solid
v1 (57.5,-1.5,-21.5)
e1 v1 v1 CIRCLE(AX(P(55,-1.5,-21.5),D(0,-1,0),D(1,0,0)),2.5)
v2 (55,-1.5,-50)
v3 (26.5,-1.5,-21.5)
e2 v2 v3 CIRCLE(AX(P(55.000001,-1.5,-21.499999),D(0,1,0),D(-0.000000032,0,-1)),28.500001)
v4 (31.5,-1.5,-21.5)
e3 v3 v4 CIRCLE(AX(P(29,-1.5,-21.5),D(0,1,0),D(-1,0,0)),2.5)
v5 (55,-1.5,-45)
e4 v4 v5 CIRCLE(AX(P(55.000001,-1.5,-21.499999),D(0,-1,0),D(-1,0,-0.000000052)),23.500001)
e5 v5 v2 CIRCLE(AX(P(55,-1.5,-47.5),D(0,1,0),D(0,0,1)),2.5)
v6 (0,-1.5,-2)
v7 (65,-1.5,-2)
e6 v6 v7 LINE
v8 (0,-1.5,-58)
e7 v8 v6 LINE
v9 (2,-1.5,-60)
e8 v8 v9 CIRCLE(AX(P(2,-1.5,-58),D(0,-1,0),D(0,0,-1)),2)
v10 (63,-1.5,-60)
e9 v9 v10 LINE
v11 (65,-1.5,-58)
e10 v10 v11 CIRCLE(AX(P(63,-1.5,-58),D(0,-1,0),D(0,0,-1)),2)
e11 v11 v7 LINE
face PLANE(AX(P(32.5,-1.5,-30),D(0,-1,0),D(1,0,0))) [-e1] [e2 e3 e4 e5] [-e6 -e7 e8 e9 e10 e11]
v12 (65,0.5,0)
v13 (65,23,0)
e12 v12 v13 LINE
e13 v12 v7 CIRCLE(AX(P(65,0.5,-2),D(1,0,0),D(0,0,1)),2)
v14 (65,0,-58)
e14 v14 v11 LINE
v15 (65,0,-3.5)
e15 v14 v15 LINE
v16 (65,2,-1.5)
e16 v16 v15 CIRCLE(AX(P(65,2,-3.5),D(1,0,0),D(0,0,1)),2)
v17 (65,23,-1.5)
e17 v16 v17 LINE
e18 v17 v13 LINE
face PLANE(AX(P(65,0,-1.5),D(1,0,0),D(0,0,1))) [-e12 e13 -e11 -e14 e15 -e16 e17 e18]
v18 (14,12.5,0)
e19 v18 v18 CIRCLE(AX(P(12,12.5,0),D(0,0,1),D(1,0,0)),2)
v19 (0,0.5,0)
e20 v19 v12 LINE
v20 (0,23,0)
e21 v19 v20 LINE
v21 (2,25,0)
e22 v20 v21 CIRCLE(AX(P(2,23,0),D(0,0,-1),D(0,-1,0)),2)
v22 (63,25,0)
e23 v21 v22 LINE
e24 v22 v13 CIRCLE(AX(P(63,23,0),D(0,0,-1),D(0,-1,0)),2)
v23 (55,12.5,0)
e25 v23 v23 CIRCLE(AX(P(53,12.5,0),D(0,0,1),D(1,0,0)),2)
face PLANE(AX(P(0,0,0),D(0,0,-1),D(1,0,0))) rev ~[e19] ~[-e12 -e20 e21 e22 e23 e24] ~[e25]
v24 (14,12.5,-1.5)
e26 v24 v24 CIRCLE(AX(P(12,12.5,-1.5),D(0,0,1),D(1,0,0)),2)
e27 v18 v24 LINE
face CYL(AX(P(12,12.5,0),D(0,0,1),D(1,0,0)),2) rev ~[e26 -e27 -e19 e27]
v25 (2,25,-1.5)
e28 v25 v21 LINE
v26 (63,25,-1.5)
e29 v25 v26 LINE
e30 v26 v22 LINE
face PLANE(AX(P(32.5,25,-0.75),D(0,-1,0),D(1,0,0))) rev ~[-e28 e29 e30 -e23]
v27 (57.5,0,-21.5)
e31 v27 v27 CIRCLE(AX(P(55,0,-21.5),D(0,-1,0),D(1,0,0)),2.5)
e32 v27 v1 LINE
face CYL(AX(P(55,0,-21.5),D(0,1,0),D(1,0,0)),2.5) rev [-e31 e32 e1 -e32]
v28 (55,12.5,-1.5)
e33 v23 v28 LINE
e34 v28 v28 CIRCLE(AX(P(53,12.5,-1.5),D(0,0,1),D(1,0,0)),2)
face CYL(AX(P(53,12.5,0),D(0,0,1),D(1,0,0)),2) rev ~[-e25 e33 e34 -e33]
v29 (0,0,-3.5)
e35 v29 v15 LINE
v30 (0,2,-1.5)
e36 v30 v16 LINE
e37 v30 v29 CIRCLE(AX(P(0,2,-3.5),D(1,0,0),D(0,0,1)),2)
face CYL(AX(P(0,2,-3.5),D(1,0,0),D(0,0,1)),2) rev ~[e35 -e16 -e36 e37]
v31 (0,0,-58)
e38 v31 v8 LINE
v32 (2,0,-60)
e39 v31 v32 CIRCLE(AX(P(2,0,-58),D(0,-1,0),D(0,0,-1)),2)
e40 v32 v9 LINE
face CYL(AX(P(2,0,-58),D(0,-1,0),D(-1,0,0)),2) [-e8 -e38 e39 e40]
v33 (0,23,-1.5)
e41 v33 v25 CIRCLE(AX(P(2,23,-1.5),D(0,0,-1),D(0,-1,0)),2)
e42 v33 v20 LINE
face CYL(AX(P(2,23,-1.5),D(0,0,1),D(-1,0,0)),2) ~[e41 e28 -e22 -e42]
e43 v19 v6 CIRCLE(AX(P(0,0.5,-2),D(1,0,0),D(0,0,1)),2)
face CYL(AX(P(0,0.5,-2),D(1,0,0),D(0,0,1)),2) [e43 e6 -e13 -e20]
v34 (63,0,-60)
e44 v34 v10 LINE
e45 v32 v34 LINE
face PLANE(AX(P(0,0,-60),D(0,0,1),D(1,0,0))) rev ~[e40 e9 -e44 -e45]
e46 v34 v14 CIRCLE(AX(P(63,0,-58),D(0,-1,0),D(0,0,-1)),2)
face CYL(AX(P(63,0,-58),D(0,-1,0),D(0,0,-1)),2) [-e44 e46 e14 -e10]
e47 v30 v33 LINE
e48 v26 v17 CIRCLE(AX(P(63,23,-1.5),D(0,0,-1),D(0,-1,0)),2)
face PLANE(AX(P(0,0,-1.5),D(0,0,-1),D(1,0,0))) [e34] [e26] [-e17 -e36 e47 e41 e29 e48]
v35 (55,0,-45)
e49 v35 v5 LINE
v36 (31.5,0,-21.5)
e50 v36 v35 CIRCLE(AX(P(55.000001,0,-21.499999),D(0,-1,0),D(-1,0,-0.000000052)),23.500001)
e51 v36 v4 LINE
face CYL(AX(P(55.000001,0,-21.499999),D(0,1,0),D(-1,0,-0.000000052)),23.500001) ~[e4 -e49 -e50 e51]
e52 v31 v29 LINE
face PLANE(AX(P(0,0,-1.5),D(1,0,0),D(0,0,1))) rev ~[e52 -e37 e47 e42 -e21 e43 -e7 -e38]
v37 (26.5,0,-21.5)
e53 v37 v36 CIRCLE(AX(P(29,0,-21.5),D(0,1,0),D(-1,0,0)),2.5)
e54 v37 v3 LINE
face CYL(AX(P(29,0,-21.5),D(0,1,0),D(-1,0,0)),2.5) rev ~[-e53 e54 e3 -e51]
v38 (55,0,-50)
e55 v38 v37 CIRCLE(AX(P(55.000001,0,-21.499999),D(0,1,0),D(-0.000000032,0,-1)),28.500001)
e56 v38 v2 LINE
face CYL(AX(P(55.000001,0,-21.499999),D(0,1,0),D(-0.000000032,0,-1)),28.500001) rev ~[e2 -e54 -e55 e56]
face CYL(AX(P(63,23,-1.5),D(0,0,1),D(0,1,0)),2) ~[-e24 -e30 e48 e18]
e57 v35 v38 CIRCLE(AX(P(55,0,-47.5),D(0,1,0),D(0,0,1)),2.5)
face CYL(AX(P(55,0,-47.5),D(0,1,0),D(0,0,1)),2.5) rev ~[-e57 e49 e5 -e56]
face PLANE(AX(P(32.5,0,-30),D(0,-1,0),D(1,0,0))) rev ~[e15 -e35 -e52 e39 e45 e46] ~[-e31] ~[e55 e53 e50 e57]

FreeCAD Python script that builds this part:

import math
import FreeCAD as App
import Part
import Sketcher
Q = App.Units.Quantity


def edges_at(feature, points):
    """Names of the edges that pass closest to the given points."""
    edges = feature.Shape.Edges
    near = lambda p: min(range(len(edges)), key=lambda i: edges[i].distToShape(Part.Vertex(*p))[0])
    return sorted({f"Edge{near(p) + 1}" for p in points})

doc = App.newDocument("Part")
body = doc.addObject("PartDesign::Body", "Body")

sketch1 = body.newObject("Sketcher::SketchObject", "Sketch")
sketch1.AttachmentSupport = (doc.getObject("XZ_Plane"), [""])
sketch1.MapMode = "FlatFace"
sketch1.addGeometry(Part.LineSegment(App.Vector(0, 0, 0), App.Vector(0, -60, 0)), False)
sketch1.addGeometry(Part.LineSegment(App.Vector(0, -60, 0), App.Vector(65, -60, 0)), False)
sketch1.addGeometry(Part.LineSegment(App.Vector(65, -60, 0), App.Vector(65, 0, 0)), False)
sketch1.addGeometry(Part.LineSegment(App.Vector(65, 0, 0), App.Vector(0, 0, 0)), False)
sketch1.addGeometry(Part.ArcOfCircle(Part.Circle(App.Vector(55, -21.5, 0), App.Vector(0, 0, 1), 23.5), math.radians(-180), math.radians(-90)), False)
sketch1.addGeometry(Part.ArcOfCircle(Part.Circle(App.Vector(55, -47.5, 0), App.Vector(0, 0, 1), 2.5), math.radians(-90), math.radians(90)), False)
sketch1.addGeometry(Part.ArcOfCircle(Part.Circle(App.Vector(55, -21.5, 0), App.Vector(0, 0, 1), 28.5), math.radians(-180), math.radians(-90)), False)
sketch1.addGeometry(Part.ArcOfCircle(Part.Circle(App.Vector(29, -21.5, 0), App.Vector(0, 0, 1), 2.5), math.radians(0), math.radians(180)), False)
sketch1.addGeometry(Part.Circle(App.Vector(55, -21.5, 0), App.Vector(0, 0, 1), 2.5), False)
sketch1.addConstraint(Sketcher.Constraint("Coincident", 0, 2, 1, 1))
sketch1.addConstraint(Sketcher.Constraint("Coincident", 1, 2, 2, 1))
sketch1.addConstraint(Sketcher.Constraint("Coincident", 2, 2, 3, 1))
sketch1.addConstraint(Sketcher.Constraint("Coincident", 3, 2, 0, 1))
sketch1.addConstraint(Sketcher.Constraint("Tangent", 4, 2, 5, 2))
sketch1.addConstraint(Sketcher.Constraint("Tangent", 5, 1, 6, 2))
sketch1.addConstraint(Sketcher.Constraint("Tangent", 6, 1, 7, 2))
sketch1.addConstraint(Sketcher.Constraint("Tangent", 7, 1, 4, 1))
sketch1.addConstraint(Sketcher.Constraint("Vertical", 0))
sketch1.addConstraint(Sketcher.Constraint("Horizontal", 1))
sketch1.addConstraint(Sketcher.Constraint("Vertical", 2))
sketch1.addConstraint(Sketcher.Constraint("Horizontal", 3))
sketch1.addConstraint(Sketcher.Constraint("Coincident", 3, 2, -1, 1))
sketch1.addConstraint(Sketcher.Constraint("Coincident", 6, 3, 4, 3))
sketch1.addConstraint(Sketcher.Constraint("Coincident", 8, 3, 4, 3))
sketch1.addConstraint(Sketcher.Constraint("Equal", 7, 8))
sketch1.addConstraint(Sketcher.Constraint("Horizontal", 6, 3, 7, 3))
sketch1.addConstraint(Sketcher.Constraint("Vertical", 4, 3, 5, 3))
sketch1.addConstraint(Sketcher.Constraint("Diameter", 8, Q("5 mm")))
sketch1.addConstraint(Sketcher.Constraint("Radius", 4, Q("23.500001 mm")))
sketch1.addConstraint(Sketcher.Constraint("DistanceX", 1, 1, 1, 2, Q("65 mm")))
sketch1.addConstraint(Sketcher.Constraint("DistanceY", 0, 2, 0, 1, Q("60 mm")))
sketch1.addConstraint(Sketcher.Constraint("DistanceX", -1, 1, 4, 3, Q("55.000001 mm")))
sketch1.addConstraint(Sketcher.Constraint("DistanceY", 4, 2, -1, 1, Q("45 mm")))
pad1 = body.newObject("PartDesign::Pad", "Pad")
pad1.Profile = sketch1
pad1.Length = 1.5

sketch2 = body.newObject("Sketcher::SketchObject", "Sketch001")
sketch2.AttachmentSupport = (doc.getObject("XZ_Plane"), [""])
sketch2.MapMode = "FlatFace"
sketch2.addGeometry(Part.LineSegment(App.Vector(0, 0, 0), App.Vector(0, -1.5, 0)), False)
sketch2.addGeometry(Part.LineSegment(App.Vector(0, -1.5, 0), App.Vector(65, -1.5, 0)), False)
sketch2.addGeometry(Part.LineSegment(App.Vector(65, -1.5, 0), App.Vector(65, 0, 0)), False)
sketch2.addGeometry(Part.LineSegment(App.Vector(65, 0, 0), App.Vector(0, 0, 0)), False)
sketch2.addConstraint(Sketcher.Constraint("Coincident", 0, 2, 1, 1))
sketch2.addConstraint(Sketcher.Constraint("Coincident", 1, 2, 2, 1))
sketch2.addConstraint(Sketcher.Constraint("Coincident", 2, 2, 3, 1))
sketch2.addConstraint(Sketcher.Constraint("Coincident", 3, 2, 0, 1))
sketch2.addConstraint(Sketcher.Constraint("Vertical", 0))
sketch2.addConstraint(Sketcher.Constraint("Horizontal", 1))
sketch2.addConstraint(Sketcher.Constraint("Vertical", 2))
sketch2.addConstraint(Sketcher.Constraint("Horizontal", 3))
sketch2.addConstraint(Sketcher.Constraint("Coincident", 3, 2, -1, 1))
sketch2.addConstraint(Sketcher.Constraint("DistanceX", 1, 1, 1, 2, Q("65 mm")))
sketch2.addConstraint(Sketcher.Constraint("DistanceY", 0, 2, 0, 1, Q("1.5 mm")))
pad2 = body.newObject("PartDesign::Pad", "Pad001")
pad2.Profile = sketch2
pad2.Length = 25
pad2.Reversed = True

sketch3 = body.newObject("Sketcher::SketchObject", "Sketch002")
sketch3.AttachmentSupport = (doc.getObject("XY_Plane"), [""])
sketch3.MapMode = "FlatFace"
sketch3.addGeometry(Part.Circle(App.Vector(53, 12.5, 0), App.Vector(0, 0, 1), 2), False)
sketch3.addGeometry(Part.Circle(App.Vector(12, 12.5, 0), App.Vector(0, 0, 1), 2), False)
sketch3.addConstraint(Sketcher.Constraint("Equal", 0, 1))
sketch3.addConstraint(Sketcher.Constraint("Horizontal", 0, 3, 1, 3))
sketch3.addConstraint(Sketcher.Constraint("Diameter", 0, Q("4 mm")))
sketch3.addConstraint(Sketcher.Constraint("DistanceX", -1, 1, 0, 3, Q("53 mm")))
sketch3.addConstraint(Sketcher.Constraint("DistanceX", -1, 1, 1, 3, Q("12 mm")))
sketch3.addConstraint(Sketcher.Constraint("DistanceY", -1, 1, 0, 3, Q("12.5 mm")))
pocket1 = body.newObject("PartDesign::Pocket", "Pocket")
pocket1.Profile = sketch3
pocket1.Length = 25
doc.recompute()

fillet = body.newObject("PartDesign::Fillet", "Fillet")
fillet.Base = (pocket1, edges_at(pocket1, [
    (65, -0.75, -60),
    (32.5, 0, -1.5),
    (32.5, -1.5, 0),
    (0, -0.75, -60),
    (0, 25, -0.75),
    (65, 25, -0.75),
]))
fillet.Radius = 2

doc.recompute()
